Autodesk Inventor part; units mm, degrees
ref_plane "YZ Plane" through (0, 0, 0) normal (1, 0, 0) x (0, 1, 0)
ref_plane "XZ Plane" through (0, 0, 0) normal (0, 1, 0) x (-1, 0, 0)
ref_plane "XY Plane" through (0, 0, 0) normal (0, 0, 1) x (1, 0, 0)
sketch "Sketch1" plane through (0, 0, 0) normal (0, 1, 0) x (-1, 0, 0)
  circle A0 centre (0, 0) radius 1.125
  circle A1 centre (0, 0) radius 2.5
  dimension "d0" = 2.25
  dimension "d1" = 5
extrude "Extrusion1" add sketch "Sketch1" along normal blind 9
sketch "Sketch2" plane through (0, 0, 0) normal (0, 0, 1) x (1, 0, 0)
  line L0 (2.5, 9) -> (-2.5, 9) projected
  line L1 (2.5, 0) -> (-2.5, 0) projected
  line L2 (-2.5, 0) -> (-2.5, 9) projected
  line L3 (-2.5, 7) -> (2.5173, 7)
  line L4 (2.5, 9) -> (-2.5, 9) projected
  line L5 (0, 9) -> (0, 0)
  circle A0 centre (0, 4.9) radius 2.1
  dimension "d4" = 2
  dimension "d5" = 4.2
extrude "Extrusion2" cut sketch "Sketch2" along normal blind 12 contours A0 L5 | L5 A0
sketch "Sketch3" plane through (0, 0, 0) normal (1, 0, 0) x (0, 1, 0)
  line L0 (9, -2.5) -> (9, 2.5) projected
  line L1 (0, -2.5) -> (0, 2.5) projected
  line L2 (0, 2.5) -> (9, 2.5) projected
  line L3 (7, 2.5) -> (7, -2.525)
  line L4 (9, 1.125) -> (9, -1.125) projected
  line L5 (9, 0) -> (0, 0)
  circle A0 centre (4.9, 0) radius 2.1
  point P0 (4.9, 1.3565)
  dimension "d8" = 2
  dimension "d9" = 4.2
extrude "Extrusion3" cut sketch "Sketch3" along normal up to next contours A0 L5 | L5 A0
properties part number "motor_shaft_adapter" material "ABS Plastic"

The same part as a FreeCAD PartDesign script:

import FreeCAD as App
import Part
import Sketcher
from FreeCAD import Vector
Q = App.Units.Quantity

doc = App.newDocument("Part")
body = doc.addObject("PartDesign::Body", "Body")

# Sketch on XZ plane
sketch1 = body.newObject("Sketcher::SketchObject", "Sketch")
sketch1.AttachmentSupport = (doc.getObject("XZ_Plane"), [""])
sketch1.MapMode = "FlatFace"
sketch1.addGeometry([
    Part.Circle(Vector(0, 0, 0), Vector(0, 0, 1), 2.5),
    Part.Circle(Vector(0, 0, 0), Vector(0, 0, 1), 1.1),
], False)
sketch1.addConstraint([
    Sketcher.Constraint("Coincident", 0, 3, -1, 1),
    Sketcher.Constraint("Coincident", 1, 3, -1, 1),
    Sketcher.Constraint("Diameter", 0, Q("5 mm")),
    Sketcher.Constraint("Diameter", 1, Q("2.25 mm")),
])
pad1 = body.newObject("PartDesign::Pad", "Pad")
pad1.Profile = sketch1
pad1.Length = 9
pad1.Reversed = True

# Sketch on XY plane
sketch2 = body.newObject("Sketcher::SketchObject", "Sketch001")
sketch2.AttachmentSupport = (doc.getObject("XY_Plane"), [""])
sketch2.MapMode = "FlatFace"
sketch2.addGeometry(Part.Circle(Vector(0, 4.9, 0), Vector(0, 0, 1), 2.1), False)
sketch2.addConstraint([
    Sketcher.Constraint("PointOnObject", 0, 3, -2),
    Sketcher.Constraint("Diameter", 0, Q("4.2 mm")),
    Sketcher.Constraint("DistanceY", -1, 1, 0, 3, Q("4.9 mm")),
])
pocket1 = body.newObject("PartDesign::Pocket", "Pocket")
pocket1.Profile = sketch2
pocket1.Length = 12
pocket1.Reversed = True

# Sketch on YZ plane
sketch3 = body.newObject("Sketcher::SketchObject", "Sketch002")
sketch3.AttachmentSupport = (doc.getObject("YZ_Plane"), [""])
sketch3.MapMode = "FlatFace"
sketch3.addGeometry(Part.Circle(Vector(4.9, 0, 0), Vector(0, 0, 1), 2.1), False)
sketch3.addConstraint([
    Sketcher.Constraint("PointOnObject", 0, 3, -1),
    Sketcher.Constraint("Diameter", 0, Q("4.2 mm")),
    Sketcher.Constraint("DistanceX", -1, 1, 0, 3, Q("4.9 mm")),
])
pocket2 = body.newObject("PartDesign::Pocket", "Pocket001")
pocket2.Profile = sketch3
pocket2.Length = 2.5
pocket2.Reversed = True

doc.recompute()
